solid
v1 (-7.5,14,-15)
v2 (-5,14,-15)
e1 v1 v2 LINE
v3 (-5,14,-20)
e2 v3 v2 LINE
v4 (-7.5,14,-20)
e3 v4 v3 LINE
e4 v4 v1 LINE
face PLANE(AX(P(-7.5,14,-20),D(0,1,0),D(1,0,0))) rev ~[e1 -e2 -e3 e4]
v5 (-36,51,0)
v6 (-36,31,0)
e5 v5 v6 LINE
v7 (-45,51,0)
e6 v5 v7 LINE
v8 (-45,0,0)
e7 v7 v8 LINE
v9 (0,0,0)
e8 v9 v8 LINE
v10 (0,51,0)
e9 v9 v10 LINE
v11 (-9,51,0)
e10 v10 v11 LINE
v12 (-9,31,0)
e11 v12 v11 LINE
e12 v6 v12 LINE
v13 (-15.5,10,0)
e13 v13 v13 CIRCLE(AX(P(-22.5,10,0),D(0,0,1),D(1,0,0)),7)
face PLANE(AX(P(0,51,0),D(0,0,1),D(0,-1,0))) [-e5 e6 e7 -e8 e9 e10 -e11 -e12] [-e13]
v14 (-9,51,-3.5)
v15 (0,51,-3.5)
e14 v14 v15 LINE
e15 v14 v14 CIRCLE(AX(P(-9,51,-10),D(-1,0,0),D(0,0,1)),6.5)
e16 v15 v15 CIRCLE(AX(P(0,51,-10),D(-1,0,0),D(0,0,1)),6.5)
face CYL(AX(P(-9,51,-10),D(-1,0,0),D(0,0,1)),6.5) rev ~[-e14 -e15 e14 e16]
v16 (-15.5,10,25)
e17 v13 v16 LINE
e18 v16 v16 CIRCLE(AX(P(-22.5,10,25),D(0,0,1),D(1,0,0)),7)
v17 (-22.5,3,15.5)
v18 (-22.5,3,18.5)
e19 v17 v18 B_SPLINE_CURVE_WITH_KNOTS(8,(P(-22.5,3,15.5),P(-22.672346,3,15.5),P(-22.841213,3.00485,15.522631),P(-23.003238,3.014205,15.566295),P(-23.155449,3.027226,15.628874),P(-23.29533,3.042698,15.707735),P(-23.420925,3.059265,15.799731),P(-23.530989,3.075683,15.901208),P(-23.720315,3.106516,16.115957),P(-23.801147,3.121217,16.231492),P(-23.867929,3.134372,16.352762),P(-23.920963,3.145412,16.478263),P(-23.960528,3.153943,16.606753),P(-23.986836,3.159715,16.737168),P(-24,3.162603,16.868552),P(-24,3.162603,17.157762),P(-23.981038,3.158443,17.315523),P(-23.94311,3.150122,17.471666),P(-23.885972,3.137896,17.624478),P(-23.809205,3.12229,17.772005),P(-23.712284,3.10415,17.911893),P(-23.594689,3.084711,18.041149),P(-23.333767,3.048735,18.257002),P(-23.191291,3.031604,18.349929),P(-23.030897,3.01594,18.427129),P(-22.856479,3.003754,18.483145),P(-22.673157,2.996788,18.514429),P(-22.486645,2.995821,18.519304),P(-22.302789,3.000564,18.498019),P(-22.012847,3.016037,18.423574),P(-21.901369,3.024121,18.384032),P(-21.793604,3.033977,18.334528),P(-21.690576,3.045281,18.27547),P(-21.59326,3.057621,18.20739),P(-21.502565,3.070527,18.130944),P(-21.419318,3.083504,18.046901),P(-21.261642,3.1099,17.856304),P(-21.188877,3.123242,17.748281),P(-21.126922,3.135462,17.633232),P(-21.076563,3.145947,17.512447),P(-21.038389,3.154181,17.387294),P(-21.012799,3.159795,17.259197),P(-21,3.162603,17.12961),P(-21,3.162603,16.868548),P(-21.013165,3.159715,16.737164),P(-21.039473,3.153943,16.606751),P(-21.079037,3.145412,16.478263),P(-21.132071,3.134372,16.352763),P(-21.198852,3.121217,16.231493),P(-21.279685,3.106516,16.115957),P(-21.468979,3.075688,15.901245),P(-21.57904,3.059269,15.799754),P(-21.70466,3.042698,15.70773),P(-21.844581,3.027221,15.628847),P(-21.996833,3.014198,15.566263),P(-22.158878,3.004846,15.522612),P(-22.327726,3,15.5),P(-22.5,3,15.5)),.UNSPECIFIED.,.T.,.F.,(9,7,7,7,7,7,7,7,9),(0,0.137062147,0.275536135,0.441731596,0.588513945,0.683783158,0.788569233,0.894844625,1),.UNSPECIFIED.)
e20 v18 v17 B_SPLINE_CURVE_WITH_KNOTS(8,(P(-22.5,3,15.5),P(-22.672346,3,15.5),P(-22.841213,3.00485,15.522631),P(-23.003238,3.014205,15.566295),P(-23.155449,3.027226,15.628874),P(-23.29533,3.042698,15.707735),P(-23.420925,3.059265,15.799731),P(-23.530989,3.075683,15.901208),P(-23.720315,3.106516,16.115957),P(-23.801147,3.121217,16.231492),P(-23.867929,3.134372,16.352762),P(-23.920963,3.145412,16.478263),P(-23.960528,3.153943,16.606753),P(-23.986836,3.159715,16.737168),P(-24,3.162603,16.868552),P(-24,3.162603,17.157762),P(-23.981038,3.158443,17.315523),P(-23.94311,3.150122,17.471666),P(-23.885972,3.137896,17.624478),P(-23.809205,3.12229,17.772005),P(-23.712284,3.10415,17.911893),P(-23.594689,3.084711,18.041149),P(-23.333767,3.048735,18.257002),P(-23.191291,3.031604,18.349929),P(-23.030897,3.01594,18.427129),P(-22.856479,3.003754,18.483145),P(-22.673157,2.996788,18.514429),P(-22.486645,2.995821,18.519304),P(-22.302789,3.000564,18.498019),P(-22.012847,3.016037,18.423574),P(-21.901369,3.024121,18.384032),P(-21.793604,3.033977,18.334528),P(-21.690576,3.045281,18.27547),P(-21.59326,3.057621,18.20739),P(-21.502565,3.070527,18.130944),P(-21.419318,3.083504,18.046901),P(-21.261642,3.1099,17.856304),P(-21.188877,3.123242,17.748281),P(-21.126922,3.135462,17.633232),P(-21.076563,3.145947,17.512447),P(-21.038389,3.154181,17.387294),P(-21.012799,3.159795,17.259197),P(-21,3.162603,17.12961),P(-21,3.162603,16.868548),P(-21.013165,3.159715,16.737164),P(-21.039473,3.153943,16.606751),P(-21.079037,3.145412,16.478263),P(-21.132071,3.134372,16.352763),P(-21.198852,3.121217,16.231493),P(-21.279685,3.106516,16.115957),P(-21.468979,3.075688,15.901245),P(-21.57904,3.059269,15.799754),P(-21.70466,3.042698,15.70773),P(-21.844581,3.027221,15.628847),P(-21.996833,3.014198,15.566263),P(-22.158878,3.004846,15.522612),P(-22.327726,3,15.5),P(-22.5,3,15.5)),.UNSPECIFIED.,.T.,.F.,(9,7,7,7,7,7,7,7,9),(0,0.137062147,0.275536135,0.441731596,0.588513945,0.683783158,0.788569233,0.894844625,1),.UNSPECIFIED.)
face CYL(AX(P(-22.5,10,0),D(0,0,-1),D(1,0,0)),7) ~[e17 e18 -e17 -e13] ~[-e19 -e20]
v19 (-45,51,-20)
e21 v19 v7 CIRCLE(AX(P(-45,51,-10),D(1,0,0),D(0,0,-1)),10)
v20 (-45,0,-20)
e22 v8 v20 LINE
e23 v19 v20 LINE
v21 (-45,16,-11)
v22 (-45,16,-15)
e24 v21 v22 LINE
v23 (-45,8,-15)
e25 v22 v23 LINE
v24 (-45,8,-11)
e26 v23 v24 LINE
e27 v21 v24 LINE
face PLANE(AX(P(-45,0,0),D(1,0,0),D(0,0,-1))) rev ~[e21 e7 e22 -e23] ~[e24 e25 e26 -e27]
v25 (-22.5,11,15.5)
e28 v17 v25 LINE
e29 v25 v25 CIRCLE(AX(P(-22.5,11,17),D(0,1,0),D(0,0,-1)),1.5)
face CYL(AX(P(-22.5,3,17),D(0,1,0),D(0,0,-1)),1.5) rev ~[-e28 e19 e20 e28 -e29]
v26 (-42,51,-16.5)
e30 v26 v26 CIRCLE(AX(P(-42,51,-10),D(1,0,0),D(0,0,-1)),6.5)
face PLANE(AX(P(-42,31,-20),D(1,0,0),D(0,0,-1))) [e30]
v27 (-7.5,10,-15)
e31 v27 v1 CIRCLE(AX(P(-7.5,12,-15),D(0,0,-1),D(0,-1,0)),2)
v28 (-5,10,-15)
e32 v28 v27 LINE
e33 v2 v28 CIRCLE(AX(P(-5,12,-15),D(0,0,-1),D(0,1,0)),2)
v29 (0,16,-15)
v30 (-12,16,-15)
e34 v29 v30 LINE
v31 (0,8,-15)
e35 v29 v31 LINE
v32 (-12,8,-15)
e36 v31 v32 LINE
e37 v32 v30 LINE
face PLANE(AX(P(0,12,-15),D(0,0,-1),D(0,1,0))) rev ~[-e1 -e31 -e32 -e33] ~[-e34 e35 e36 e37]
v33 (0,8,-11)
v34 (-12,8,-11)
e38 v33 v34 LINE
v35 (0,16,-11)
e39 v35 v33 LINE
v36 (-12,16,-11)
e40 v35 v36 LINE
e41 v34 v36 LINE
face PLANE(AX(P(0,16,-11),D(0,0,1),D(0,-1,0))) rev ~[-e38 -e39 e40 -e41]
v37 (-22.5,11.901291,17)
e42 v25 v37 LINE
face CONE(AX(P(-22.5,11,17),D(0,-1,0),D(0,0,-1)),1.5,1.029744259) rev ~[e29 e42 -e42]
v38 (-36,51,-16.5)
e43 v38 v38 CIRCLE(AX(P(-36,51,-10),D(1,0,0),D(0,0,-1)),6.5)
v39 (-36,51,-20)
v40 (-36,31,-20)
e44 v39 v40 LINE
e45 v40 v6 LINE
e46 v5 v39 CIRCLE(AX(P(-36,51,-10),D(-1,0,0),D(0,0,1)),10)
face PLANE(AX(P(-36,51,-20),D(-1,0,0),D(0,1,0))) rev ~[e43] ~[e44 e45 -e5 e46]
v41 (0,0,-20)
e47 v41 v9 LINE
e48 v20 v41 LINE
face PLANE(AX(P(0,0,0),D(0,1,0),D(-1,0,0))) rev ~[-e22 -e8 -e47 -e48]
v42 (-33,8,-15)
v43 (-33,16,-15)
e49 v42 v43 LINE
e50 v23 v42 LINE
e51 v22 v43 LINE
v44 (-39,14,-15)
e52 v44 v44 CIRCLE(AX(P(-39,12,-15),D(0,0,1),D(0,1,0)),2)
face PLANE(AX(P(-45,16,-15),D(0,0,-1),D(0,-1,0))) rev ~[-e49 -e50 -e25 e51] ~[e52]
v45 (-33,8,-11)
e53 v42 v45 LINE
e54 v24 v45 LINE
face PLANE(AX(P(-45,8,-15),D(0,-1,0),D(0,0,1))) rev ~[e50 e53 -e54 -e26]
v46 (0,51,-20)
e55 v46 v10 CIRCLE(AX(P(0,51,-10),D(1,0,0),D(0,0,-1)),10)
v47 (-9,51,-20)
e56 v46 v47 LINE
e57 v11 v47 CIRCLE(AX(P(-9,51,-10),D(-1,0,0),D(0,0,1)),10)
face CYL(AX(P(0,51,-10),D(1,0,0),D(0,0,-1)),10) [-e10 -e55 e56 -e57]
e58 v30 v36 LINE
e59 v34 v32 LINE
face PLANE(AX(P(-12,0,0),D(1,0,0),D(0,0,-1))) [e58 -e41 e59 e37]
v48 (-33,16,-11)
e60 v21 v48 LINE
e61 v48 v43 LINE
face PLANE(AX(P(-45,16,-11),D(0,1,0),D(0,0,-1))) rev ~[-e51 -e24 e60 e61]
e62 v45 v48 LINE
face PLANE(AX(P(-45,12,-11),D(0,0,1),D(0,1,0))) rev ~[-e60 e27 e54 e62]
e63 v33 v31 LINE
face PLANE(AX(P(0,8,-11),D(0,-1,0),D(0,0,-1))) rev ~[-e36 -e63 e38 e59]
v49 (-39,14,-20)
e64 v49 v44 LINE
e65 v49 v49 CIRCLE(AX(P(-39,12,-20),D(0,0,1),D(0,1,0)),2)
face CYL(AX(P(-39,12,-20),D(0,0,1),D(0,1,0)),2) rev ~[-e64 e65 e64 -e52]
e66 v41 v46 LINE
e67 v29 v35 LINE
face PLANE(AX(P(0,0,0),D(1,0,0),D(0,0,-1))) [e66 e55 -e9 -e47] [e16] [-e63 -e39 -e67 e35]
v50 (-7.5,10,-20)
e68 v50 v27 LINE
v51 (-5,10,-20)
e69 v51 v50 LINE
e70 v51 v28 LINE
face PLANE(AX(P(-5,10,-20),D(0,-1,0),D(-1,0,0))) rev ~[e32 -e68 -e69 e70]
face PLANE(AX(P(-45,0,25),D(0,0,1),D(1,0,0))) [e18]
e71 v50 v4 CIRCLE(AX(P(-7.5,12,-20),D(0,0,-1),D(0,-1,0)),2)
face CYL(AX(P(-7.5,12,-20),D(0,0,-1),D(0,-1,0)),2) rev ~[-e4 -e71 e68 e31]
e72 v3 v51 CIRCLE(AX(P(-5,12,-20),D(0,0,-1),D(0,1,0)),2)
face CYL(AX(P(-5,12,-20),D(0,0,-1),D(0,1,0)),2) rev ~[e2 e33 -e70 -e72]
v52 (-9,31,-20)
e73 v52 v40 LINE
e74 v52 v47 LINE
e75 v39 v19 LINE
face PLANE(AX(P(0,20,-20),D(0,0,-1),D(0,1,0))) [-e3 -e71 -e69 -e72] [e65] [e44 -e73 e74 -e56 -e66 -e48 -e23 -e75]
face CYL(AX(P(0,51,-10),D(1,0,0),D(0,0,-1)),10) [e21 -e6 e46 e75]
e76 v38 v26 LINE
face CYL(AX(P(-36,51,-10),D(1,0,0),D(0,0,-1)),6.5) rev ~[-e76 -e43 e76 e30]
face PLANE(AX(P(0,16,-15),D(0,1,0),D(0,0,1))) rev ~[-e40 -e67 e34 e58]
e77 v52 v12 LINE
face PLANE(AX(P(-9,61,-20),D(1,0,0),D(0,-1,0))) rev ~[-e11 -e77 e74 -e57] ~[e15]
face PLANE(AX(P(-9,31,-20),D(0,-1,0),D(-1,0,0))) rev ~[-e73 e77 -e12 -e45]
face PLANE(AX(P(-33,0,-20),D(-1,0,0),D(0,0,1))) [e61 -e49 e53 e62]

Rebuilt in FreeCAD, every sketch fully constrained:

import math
import FreeCAD as App
import Part
import Sketcher

V = App.Vector
Q = App.Units.Quantity


def add_polygon(sketch, points):
    """Adds a closed chain of lines whose ends are joined by coincident constraints."""
    first, n = sketch.GeometryCount, len(points)
    for a, b in zip(points, points[1:] + points[:1]):
        sketch.addGeometry(Part.LineSegment(App.Vector(*a, 0), App.Vector(*b, 0)), False)
    for i in range(n):
        sketch.addConstraint(Sketcher.Constraint("Coincident", first + i, 2, first + (i + 1) % n, 1))

doc = App.newDocument("Part")
body = doc.addObject("PartDesign::Body", "Body")

sketch1 = body.newObject("Sketcher::SketchObject", "Sketch")
sketch1.AttachmentSupport = (doc.getObject("XZ_Plane"), [""])
sketch1.MapMode = "FlatFace"
add_polygon(sketch1, [(-45, 0), (0, 0), (0, -20), (-45, -20)])
sketch1.addConstraint(Sketcher.Constraint("Horizontal", 0))
sketch1.addConstraint(Sketcher.Constraint("Vertical", 1))
sketch1.addConstraint(Sketcher.Constraint("Horizontal", 2))
sketch1.addConstraint(Sketcher.Constraint("Vertical", 3))
sketch1.addConstraint(Sketcher.Constraint("Coincident", 0, 2, -1, 1))
sketch1.addConstraint(Sketcher.Constraint("DistanceX", 0, 1, 0, 2, Q("45 mm")))
sketch1.addConstraint(Sketcher.Constraint("DistanceY", 1, 2, 1, 1, Q("20 mm")))
pad1 = body.newObject("PartDesign::Pad", "Pad")
pad1.Profile = sketch1
pad1.Length = 20
pad1.Reversed = True

sketch2 = body.newObject("Sketcher::SketchObject", "Sketch001")
sketch2.AttachmentSupport = (doc.getObject("XY_Plane"), [""])
sketch2.MapMode = "FlatFace"
sketch2.addGeometry(Part.Circle(V(-22, 10, 0), V(0, 0, 1), 7), False)
sketch2.addConstraint(Sketcher.Constraint("Diameter", 0, Q("14 mm")))
sketch2.addConstraint(Sketcher.Constraint("DistanceY", -1, 1, 0, 3, Q("10 mm")))
sketch2.addConstraint(Sketcher.Constraint("DistanceX", 0, 3, -1, 1, Q("22.5 mm")))
pad2 = body.newObject("PartDesign::Pad", "Pad001")
pad2.Profile = sketch2
pad2.Length = 25

sketch3 = body.newObject("Sketcher::SketchObject", "Sketch002")
sketch3.AttachmentSupport = (doc.getObject("YZ_Plane"), [""])
sketch3.MapMode = "FlatFace"
sketch3.addGeometry(Part.LineSegment(V(51, 0, 0), V(20, 0, 0)), False)
sketch3.addGeometry(Part.LineSegment(V(20, 0, 0), V(20, -20, 0)), False)
sketch3.addGeometry(Part.LineSegment(V(20, -20, 0), V(51, -20, 0)), False)
sketch3.addGeometry(Part.ArcOfCircle(Part.Circle(V(51, -10, 0), V(0, 0, 1), 10), math.radians(-90), math.radians(90)), False)
sketch3.addConstraint(Sketcher.Constraint("Coincident", 0, 2, 1, 1))
sketch3.addConstraint(Sketcher.Constraint("Coincident", 1, 2, 2, 1))
sketch3.addConstraint(Sketcher.Constraint("Tangent", 2, 2, 3, 1))
sketch3.addConstraint(Sketcher.Constraint("Tangent", 3, 2, 0, 1))
sketch3.addConstraint(Sketcher.Constraint("Horizontal", 0))
sketch3.addConstraint(Sketcher.Constraint("Vertical", 1))
sketch3.addConstraint(Sketcher.Constraint("Horizontal", 2))
sketch3.addConstraint(Sketcher.Constraint("PointOnObject", 0, 2, -1))
sketch3.addConstraint(Sketcher.Constraint("Radius", 3, Q("10 mm")))
sketch3.addConstraint(Sketcher.Constraint("DistanceX", 0, 2, 0, 1, Q("31 mm")))
sketch3.addConstraint(Sketcher.Constraint("DistanceX", -1, 1, 3, 3, Q("51 mm")))
pad3 = body.newObject("PartDesign::Pad", "Pad002")
pad3.Profile = sketch3
pad3.Length = 45
pad3.Reversed = True

sketch4 = body.newObject("Sketcher::SketchObject", "Sketch003")
sketch4.AttachmentSupport = (doc.getObject("XY_Plane"), [""])
sketch4.MapMode = "FlatFace"
sketch4.AttachmentOffset = App.Placement(V(0, 0, -20), App.Rotation())
add_polygon(sketch4, [(-36, 61), (-9, 61), (-9, 31), (-36, 31)])
sketch4.addConstraint(Sketcher.Constraint("Horizontal", 0))
sketch4.addConstraint(Sketcher.Constraint("Vertical", 1))
sketch4.addConstraint(Sketcher.Constraint("Horizontal", 2))
sketch4.addConstraint(Sketcher.Constraint("Vertical", 3))
sketch4.addConstraint(Sketcher.Constraint("DistanceY", 1, 2, 1, 1, Q("30 mm")))
sketch4.addConstraint(Sketcher.Constraint("DistanceX", 0, 2, -1, 1, Q("9 mm")))
sketch4.addConstraint(Sketcher.Constraint("DistanceX", 0, 1, 0, 2, Q("27 mm")))
sketch4.addConstraint(Sketcher.Constraint("DistanceY", -1, 1, 0, 2, Q("61 mm")))
pocket1 = body.newObject("PartDesign::Pocket", "Pocket")
pocket1.Profile = sketch4
pocket1.Type = "ThroughAll"
pocket1.Reversed = True

sketch5 = body.newObject("Sketcher::SketchObject", "Sketch004")
sketch5.AttachmentSupport = (doc.getObject("YZ_Plane"), [""])
sketch5.MapMode = "FlatFace"
sketch5.AttachmentOffset = App.Placement(V(0, 0, -36), App.Rotation())
sketch5.addGeometry(Part.Circle(V(51, -10, 0), V(0, 0, 1), 6), False)
sketch5.addConstraint(Sketcher.Constraint("Diameter", 0, Q("13 mm")))
sketch5.addConstraint(Sketcher.Constraint("DistanceX", -1, 1, 0, 3, Q("51 mm")))
sketch5.addConstraint(Sketcher.Constraint("DistanceY", 0, 3, -1, 1, Q("10 mm")))
pocket2 = body.newObject("PartDesign::Pocket", "Pocket001")
pocket2.Profile = sketch5
pocket2.Length = 6

sketch6 = body.newObject("Sketcher::SketchObject", "Sketch005")
sketch6.AttachmentSupport = (doc.getObject("YZ_Plane"), [""])
sketch6.MapMode = "FlatFace"
sketch6.AttachmentOffset = App.Placement(V(0, 0, -9), App.Rotation())
sketch6.addGeometry(Part.Circle(V(51, -10, 0), V(0, 0, 1), 6), False)
sketch6.addConstraint(Sketcher.Constraint("Diameter", 0, Q("13 mm")))
sketch6.addConstraint(Sketcher.Constraint("DistanceX", -1, 1, 0, 3, Q("51 mm")))
sketch6.addConstraint(Sketcher.Constraint("DistanceY", 0, 3, -1, 1, Q("10 mm")))
pocket3 = body.newObject("PartDesign::Pocket", "Pocket002")
pocket3.Profile = sketch6
pocket3.Type = "ThroughAll"
pocket3.Reversed = True

sketch7 = body.newObject("Sketcher::SketchObject", "Sketch006")
sketch7.AttachmentSupport = (doc.getObject("XY_Plane"), [""])
sketch7.MapMode = "FlatFace"
sketch7.AttachmentOffset = App.Placement(V(0, 0, -20), App.Rotation())
sketch7.addGeometry(Part.Circle(V(-39, 12, 0), V(0, 0, 1), 2), False)
sketch7.addConstraint(Sketcher.Constraint("Diameter", 0, Q("4 mm")))
sketch7.addConstraint(Sketcher.Constraint("DistanceX", 0, 3, -1, 1, Q("39 mm")))
sketch7.addConstraint(Sketcher.Constraint("DistanceY", -1, 1, 0, 3, Q("12 mm")))
doc.recompute()
hole = body.newObject("PartDesign::Hole", "Hole")
hole.Profile = sketch7
hole.ThreadType = "None"
hole.Diameter = 4
hole.DepthType = "Dimension"
hole.Depth = 6
hole.DrillPoint = "Angled"
hole.DrillPointAngle = 118
hole.Reversed = True

sketch8 = body.newObject("Sketcher::SketchObject", "Sketch007")
sketch8.AttachmentSupport = (doc.getObject("YZ_Plane"), [""])
sketch8.MapMode = "FlatFace"
add_polygon(sketch8, [(16, -15), (16, -11), (8, -11), (8, -15)])
sketch8.addConstraint(Sketcher.Constraint("Vertical", 0))
sketch8.addConstraint(Sketcher.Constraint("Horizontal", 1))
sketch8.addConstraint(Sketcher.Constraint("Vertical", 2))
sketch8.addConstraint(Sketcher.Constraint("Horizontal", 3))
sketch8.addConstraint(Sketcher.Constraint("DistanceX", 1, 2, 1, 1, Q("8 mm")))
sketch8.addConstraint(Sketcher.Constraint("DistanceY", 0, 1, 0, 2, Q("4 mm")))
sketch8.addConstraint(Sketcher.Constraint("DistanceX", -1, 1, 1, 2, Q("8 mm")))
sketch8.addConstraint(Sketcher.Constraint("DistanceY", 0, 2, -1, 1, Q("11 mm")))
pocket4 = body.newObject("PartDesign::Pocket", "Pocket003")
pocket4.Profile = sketch8
pocket4.Length = 12

sketch9 = body.newObject("Sketcher::SketchObject", "Sketch008")
sketch9.AttachmentSupport = (doc.getObject("XY_Plane"), [""])
sketch9.MapMode = "FlatFace"
sketch9.AttachmentOffset = App.Placement(V(0, 0, -20), App.Rotation())
sketch9.addGeometry(Part.ArcOfCircle(Part.Circle(V(-5, 12, 0), V(0, 0, 1), 2), math.radians(-90), math.radians(90)), False)
sketch9.addGeometry(Part.LineSegment(V(-5, 10, 0), V(-7.5, 10, 0)), False)
sketch9.addGeometry(Part.ArcOfCircle(Part.Circle(V(-7.5, 12, 0), V(0, 0, 1), 2), math.radians(90), math.radians(270)), False)
sketch9.addGeometry(Part.LineSegment(V(-7.5, 14, 0), V(-5, 14, 0)), False)
sketch9.addConstraint(Sketcher.Constraint("Tangent", 0, 1, 1, 1))
sketch9.addConstraint(Sketcher.Constraint("Tangent", 1, 2, 2, 2))
sketch9.addConstraint(Sketcher.Constraint("Tangent", 2, 1, 3, 1))
sketch9.addConstraint(Sketcher.Constraint("Tangent", 3, 2, 0, 2))
sketch9.addConstraint(Sketcher.Constraint("Horizontal", 1))
sketch9.addConstraint(Sketcher.Constraint("Horizontal", 3))
sketch9.addConstraint(Sketcher.Constraint("DistanceX", 1, 2, 1, 1, Q("2.5 mm")))
sketch9.addConstraint(Sketcher.Constraint("DistanceX", 0, 3, -1, 1, Q("5 mm")))
sketch9.addConstraint(Sketcher.Constraint("Radius", 0, Q("2 mm")))
sketch9.addConstraint(Sketcher.Constraint("DistanceY", -1, 1, 0, 3, Q("12 mm")))
pocket5 = body.newObject("PartDesign::Pocket", "Pocket004")
pocket5.Profile = sketch9
pocket5.Length = 9
pocket5.Reversed = True

sketch10 = body.newObject("Sketcher::SketchObject", "Sketch009")
sketch10.AttachmentSupport = (doc.getObject("YZ_Plane"), [""])
sketch10.MapMode = "FlatFace"
sketch10.AttachmentOffset = App.Placement(V(0, 0, -45), App.Rotation())
add_polygon(sketch10, [(16, -11), (16, -15), (8, -15), (8, -11)])
sketch10.addConstraint(Sketcher.Constraint("Vertical", 0))
sketch10.addConstraint(Sketcher.Constraint("Horizontal", 1))
sketch10.addConstraint(Sketcher.Constraint("Vertical", 2))
sketch10.addConstraint(Sketcher.Constraint("Horizontal", 3))
sketch10.addConstraint(Sketcher.Constraint("DistanceX", 1, 2, 1, 1, Q("8 mm")))
sketch10.addConstraint(Sketcher.Constraint("DistanceY", 0, 2, 0, 1, Q("4 mm")))
sketch10.addConstraint(Sketcher.Constraint("DistanceX", -1, 1, 1, 2, Q("8 mm")))
sketch10.addConstraint(Sketcher.Constraint("DistanceY", 0, 2, -1, 1, Q("15 mm")))
pocket6 = body.newObject("PartDesign::Pocket", "Pocket005")
pocket6.Profile = sketch10
pocket6.Length = 12
pocket6.Reversed = True

sketch11 = body.newObject("Sketcher::SketchObject", "Sketch010")
sketch11.AttachmentSupport = (doc.getObject("XZ_Plane"), [""])
sketch11.MapMode = "FlatFace"
sketch11.AttachmentOffset = App.Placement(V(0, 0, -3), App.Rotation())
sketch11.addGeometry(Part.Circle(V(-22.5, 17, 0), V(0, 0, 1), 1.5), False)
sketch11.addConstraint(Sketcher.Constraint("Diameter", 0, Q("3 mm")))
sketch11.addConstraint(Sketcher.Constraint("DistanceY", -1, 1, 0, 3, Q("17 mm")))
sketch11.addConstraint(Sketcher.Constraint("DistanceX", 0, 3, -1, 1, Q("22.5 mm")))
doc.recompute()
hole2 = body.newObject("PartDesign::Hole", "Hole001")
hole2.Profile = sketch11
hole2.ThreadType = "None"
hole2.Diameter = 3
hole2.DepthType = "Dimension"
hole2.Depth = 8
hole2.DrillPoint = "Angled"
hole2.DrillPointAngle = 118

doc.recompute()
